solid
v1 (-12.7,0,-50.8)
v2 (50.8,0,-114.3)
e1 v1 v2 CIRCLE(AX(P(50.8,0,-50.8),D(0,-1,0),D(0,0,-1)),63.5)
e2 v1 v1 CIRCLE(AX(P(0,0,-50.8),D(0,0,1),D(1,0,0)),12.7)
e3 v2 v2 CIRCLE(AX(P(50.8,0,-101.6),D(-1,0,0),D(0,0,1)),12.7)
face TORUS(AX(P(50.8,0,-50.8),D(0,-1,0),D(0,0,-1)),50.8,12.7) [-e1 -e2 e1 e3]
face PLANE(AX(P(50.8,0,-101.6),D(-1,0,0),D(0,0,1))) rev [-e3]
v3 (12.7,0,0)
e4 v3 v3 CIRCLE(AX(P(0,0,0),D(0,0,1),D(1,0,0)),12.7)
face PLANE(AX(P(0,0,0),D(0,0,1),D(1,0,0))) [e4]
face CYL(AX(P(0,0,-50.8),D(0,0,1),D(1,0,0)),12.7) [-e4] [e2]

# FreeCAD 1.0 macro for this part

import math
import FreeCAD as App
import Part
import Sketcher

V = App.Vector
Q = App.Units.Quantity

doc = App.newDocument("Part")
body = doc.addObject("PartDesign::Body", "Body")

# Sketch on XY plane
sketch1 = body.newObject("Sketcher::SketchObject", "Sketch")
sketch1.AttachmentSupport = (doc.getObject("XY_Plane"), [""])
sketch1.MapMode = "FlatFace"
sketch1.addGeometry(Part.Circle(V(0, 0, 0), V(0, 0, 1), 13), False)
sketch1.addConstraint([
    Sketcher.Constraint("Coincident", 0, 3, -1, 1),
    Sketcher.Constraint("Diameter", 0, Q("1 in")),
])

# Sketch on XZ plane
sketch2 = body.newObject("Sketcher::SketchObject", "Sketch001")
sketch2.AttachmentSupport = (doc.getObject("XZ_Plane"), [""])
sketch2.MapMode = "FlatFace"
sketch2.addGeometry([
    Part.LineSegment(V(0, 0, 0), V(0, -51, 0)),
    Part.ArcOfCircle(Part.Circle(V(51, -51, 0), V(0, 0, 1), 51), math.radians(-180), math.radians(-90)),
], False)
sketch2.addConstraint([
    Sketcher.Constraint("Tangent", 0, 2, 1, 1),
    Sketcher.Constraint("Vertical", 0),
    Sketcher.Constraint("Coincident", 0, 1, -1, 1),
    Sketcher.Constraint("Radius", 1, Q("2 in")),
    Sketcher.Constraint("DistanceY", 0, 2, 0, 1, Q("2 in")),
    Sketcher.Constraint("DistanceX", -1, 1, 1, 2, Q("2 in")),
])
doc.recompute()

additivepipe = body.newObject("PartDesign::AdditivePipe", "AdditivePipe")
additivepipe.Profile = sketch1
additivepipe.Spine = (sketch2, ["Edge1", "Edge2"])

doc.recompute()
